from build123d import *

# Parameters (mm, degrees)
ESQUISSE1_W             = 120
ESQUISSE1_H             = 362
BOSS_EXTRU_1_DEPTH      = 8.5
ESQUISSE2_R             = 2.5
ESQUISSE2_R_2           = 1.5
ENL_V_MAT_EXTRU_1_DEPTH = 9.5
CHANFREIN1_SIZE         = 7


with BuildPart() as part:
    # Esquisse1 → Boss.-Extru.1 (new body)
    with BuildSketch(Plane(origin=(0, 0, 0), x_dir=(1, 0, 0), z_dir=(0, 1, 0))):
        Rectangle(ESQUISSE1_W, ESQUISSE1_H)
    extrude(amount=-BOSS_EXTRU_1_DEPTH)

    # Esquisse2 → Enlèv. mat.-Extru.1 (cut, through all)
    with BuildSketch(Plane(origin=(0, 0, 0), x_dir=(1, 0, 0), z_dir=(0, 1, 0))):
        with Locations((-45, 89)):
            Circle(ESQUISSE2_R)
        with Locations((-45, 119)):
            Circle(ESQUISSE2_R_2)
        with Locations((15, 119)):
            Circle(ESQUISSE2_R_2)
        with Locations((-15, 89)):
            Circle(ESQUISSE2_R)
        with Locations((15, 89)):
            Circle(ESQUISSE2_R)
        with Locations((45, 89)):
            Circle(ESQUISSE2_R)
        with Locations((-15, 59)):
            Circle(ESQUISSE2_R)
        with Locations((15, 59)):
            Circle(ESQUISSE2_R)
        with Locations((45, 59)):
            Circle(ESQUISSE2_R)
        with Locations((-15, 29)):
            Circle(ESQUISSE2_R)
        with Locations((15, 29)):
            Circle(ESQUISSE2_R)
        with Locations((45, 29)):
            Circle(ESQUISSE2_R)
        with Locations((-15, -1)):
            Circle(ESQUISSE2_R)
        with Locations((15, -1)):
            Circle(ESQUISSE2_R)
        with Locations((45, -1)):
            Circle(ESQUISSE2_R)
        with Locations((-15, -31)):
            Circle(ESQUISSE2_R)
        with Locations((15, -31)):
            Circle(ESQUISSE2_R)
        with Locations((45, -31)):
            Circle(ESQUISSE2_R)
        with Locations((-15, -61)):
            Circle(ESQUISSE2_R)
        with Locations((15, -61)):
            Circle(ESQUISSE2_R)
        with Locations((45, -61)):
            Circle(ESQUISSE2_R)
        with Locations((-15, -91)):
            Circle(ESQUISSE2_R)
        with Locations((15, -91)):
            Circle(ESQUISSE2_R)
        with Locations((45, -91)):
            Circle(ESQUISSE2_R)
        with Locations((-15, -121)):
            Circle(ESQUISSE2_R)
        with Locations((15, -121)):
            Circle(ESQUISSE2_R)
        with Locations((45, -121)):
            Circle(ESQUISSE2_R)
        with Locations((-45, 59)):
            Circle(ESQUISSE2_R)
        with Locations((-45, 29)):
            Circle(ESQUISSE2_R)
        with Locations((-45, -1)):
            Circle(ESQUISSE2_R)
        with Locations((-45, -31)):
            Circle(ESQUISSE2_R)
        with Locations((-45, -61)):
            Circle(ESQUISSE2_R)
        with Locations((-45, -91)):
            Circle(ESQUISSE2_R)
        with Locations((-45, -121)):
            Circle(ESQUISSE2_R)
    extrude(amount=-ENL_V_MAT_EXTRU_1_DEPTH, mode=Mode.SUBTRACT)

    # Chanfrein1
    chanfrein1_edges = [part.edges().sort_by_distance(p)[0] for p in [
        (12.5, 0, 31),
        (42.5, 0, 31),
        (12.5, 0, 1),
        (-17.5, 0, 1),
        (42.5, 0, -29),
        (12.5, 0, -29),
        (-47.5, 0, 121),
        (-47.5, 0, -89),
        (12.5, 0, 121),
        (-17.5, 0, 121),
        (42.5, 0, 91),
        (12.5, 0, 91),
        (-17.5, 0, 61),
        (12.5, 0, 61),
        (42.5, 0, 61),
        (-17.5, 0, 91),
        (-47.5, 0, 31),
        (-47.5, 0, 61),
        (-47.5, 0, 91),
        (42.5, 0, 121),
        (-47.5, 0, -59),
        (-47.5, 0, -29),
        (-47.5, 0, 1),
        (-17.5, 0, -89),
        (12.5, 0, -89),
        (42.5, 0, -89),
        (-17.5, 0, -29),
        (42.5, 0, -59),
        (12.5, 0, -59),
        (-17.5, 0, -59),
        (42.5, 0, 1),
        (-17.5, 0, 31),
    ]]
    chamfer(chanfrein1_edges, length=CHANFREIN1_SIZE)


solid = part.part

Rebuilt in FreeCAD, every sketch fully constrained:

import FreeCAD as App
import Part
import Sketcher


def edges_at(feature, points):
    """Names of the edges that pass closest to the given points."""
    edges = feature.Shape.Edges
    near = lambda p: min(range(len(edges)), key=lambda i: edges[i].distToShape(Part.Vertex(*p))[0])
    return sorted({f"Edge{near(p) + 1}" for p in points})

doc = App.newDocument("Part")
body = doc.addObject("PartDesign::Body", "Body")

# Sketch on XZ plane
sketch1 = body.newObject("Sketcher::SketchObject", "Sketch")
sketch1.AttachmentSupport = (doc.getObject("XZ_Plane"), [""])
sketch1.MapMode = "FlatFace"
sketch1.addGeometry([
    Part.LineSegment(App.Vector(-60, -181, 0), App.Vector(-60, 181, 0)),
    Part.LineSegment(App.Vector(-60, 181, 0), App.Vector(60, 181, 0)),
    Part.LineSegment(App.Vector(60, 181, 0), App.Vector(60, -181, 0)),
    Part.LineSegment(App.Vector(60, -181, 0), App.Vector(-60, -181, 0)),
], False)
sketch1.addConstraint([
    Sketcher.Constraint("Coincident", 0, 2, 1, 1),
    Sketcher.Constraint("Coincident", 1, 2, 2, 1),
    Sketcher.Constraint("Coincident", 2, 2, 3, 1),
    Sketcher.Constraint("Coincident", 3, 2, 0, 1),
    Sketcher.Constraint("Vertical", 0),
    Sketcher.Constraint("Horizontal", 1),
    Sketcher.Constraint("Vertical", 2),
    Sketcher.Constraint("Horizontal", 3),
    Sketcher.Constraint("Symmetric", 0, 2, 2, 2, -1, 1),
    Sketcher.Constraint("DistanceX", 1, 1, 1, 2, 120.0),
    Sketcher.Constraint("DistanceY", 0, 1, 0, 2, 362.0),
])
pad1 = body.newObject("PartDesign::Pad", "Pad")
pad1.Profile = sketch1
pad1.Length = 8.5

# Sketch on XZ plane
sketch2 = body.newObject("Sketcher::SketchObject", "Sketch001")
sketch2.AttachmentSupport = (doc.getObject("XZ_Plane"), [""])
sketch2.MapMode = "FlatFace"
sketch2.addGeometry([
    Part.Circle(App.Vector(-45, -89, 0), App.Vector(0, 0, 1), 2.5),  # 0
    Part.Circle(App.Vector(-45, -119, 0), App.Vector(0, 0, 1), 1.5),  # 1
    Part.Circle(App.Vector(15, -119, 0), App.Vector(0, 0, 1), 1.5),  # 2
    Part.Circle(App.Vector(-15, -89, 0), App.Vector(0, 0, 1), 2.5),  # 3
    Part.Circle(App.Vector(15, -89, 0), App.Vector(0, 0, 1), 2.5),  # 4
    Part.Circle(App.Vector(45, -89, 0), App.Vector(0, 0, 1), 2.5),  # 5
    Part.Circle(App.Vector(-15, -59, 0), App.Vector(0, 0, 1), 2.5),  # 6
    Part.Circle(App.Vector(15, -59, 0), App.Vector(0, 0, 1), 2.5),  # 7
    Part.Circle(App.Vector(45, -59, 0), App.Vector(0, 0, 1), 2.5),  # 8
    Part.Circle(App.Vector(-15, -29, 0), App.Vector(0, 0, 1), 2.5),  # 9
    Part.Circle(App.Vector(15, -29, 0), App.Vector(0, 0, 1), 2.5),  # 10
    Part.Circle(App.Vector(45, -29, 0), App.Vector(0, 0, 1), 2.5),  # 11
    Part.Circle(App.Vector(-15, 1, 0), App.Vector(0, 0, 1), 2.5),  # 12
    Part.Circle(App.Vector(15, 1, 0), App.Vector(0, 0, 1), 2.5),  # 13
    Part.Circle(App.Vector(45, 1, 0), App.Vector(0, 0, 1), 2.5),  # 14
    Part.Circle(App.Vector(-15, 31, 0), App.Vector(0, 0, 1), 2.5),  # 15
    Part.Circle(App.Vector(15, 31, 0), App.Vector(0, 0, 1), 2.5),  # 16
    Part.Circle(App.Vector(45, 31, 0), App.Vector(0, 0, 1), 2.5),  # 17
    Part.Circle(App.Vector(-15, 61, 0), App.Vector(0, 0, 1), 2.5),  # 18
    Part.Circle(App.Vector(15, 61, 0), App.Vector(0, 0, 1), 2.5),  # 19
    Part.Circle(App.Vector(45, 61, 0), App.Vector(0, 0, 1), 2.5),  # 20
    Part.Circle(App.Vector(-15, 91, 0), App.Vector(0, 0, 1), 2.5),  # 21
    Part.Circle(App.Vector(15, 91, 0), App.Vector(0, 0, 1), 2.5),  # 22
    Part.Circle(App.Vector(45, 91, 0), App.Vector(0, 0, 1), 2.5),  # 23
    Part.Circle(App.Vector(-15, 121, 0), App.Vector(0, 0, 1), 2.5),  # 24
    Part.Circle(App.Vector(15, 121, 0), App.Vector(0, 0, 1), 2.5),  # 25
    Part.Circle(App.Vector(45, 121, 0), App.Vector(0, 0, 1), 2.5),  # 26
    Part.Circle(App.Vector(-45, -59, 0), App.Vector(0, 0, 1), 2.5),  # 27
    Part.Circle(App.Vector(-45, -29, 0), App.Vector(0, 0, 1), 2.5),  # 28
    Part.Circle(App.Vector(-45, 1, 0), App.Vector(0, 0, 1), 2.5),  # 29
    Part.Circle(App.Vector(-45, 31, 0), App.Vector(0, 0, 1), 2.5),  # 30
    Part.Circle(App.Vector(-45, 61, 0), App.Vector(0, 0, 1), 2.5),  # 31
    Part.Circle(App.Vector(-45, 91, 0), App.Vector(0, 0, 1), 2.5),  # 32
    Part.Circle(App.Vector(-45, 121, 0), App.Vector(0, 0, 1), 2.5),  # 33
], False)
sketch2.addConstraint([
    Sketcher.Constraint("Equal", 1, 2),
    Sketcher.Constraint("Equal", 0, 3),
    Sketcher.Constraint("Equal", 3, 4),
    Sketcher.Constraint("Equal", 4, 5),
    Sketcher.Constraint("Equal", 5, 6),
    Sketcher.Constraint("Equal", 6, 7),
    Sketcher.Constraint("Equal", 7, 8),
    Sketcher.Constraint("Equal", 8, 9),
    Sketcher.Constraint("Equal", 9, 10),
    Sketcher.Constraint("Equal", 10, 11),
    Sketcher.Constraint("Equal", 11, 12),
    Sketcher.Constraint("Equal", 12, 13),
    Sketcher.Constraint("Equal", 13, 14),
    Sketcher.Constraint("Equal", 14, 15),
    Sketcher.Constraint("Equal", 15, 16),
    Sketcher.Constraint("Equal", 16, 17),
    Sketcher.Constraint("Equal", 17, 18),
    Sketcher.Constraint("Equal", 18, 19),
    Sketcher.Constraint("Equal", 19, 20),
    Sketcher.Constraint("Equal", 20, 21),
    Sketcher.Constraint("Equal", 21, 22),
    Sketcher.Constraint("Equal", 22, 23),
    Sketcher.Constraint("Equal", 23, 24),
    Sketcher.Constraint("Equal", 24, 25),
    Sketcher.Constraint("Equal", 25, 26),
    Sketcher.Constraint("Equal", 26, 27),
    Sketcher.Constraint("Equal", 27, 28),
    Sketcher.Constraint("Equal", 28, 29),
    Sketcher.Constraint("Equal", 29, 30),
    Sketcher.Constraint("Equal", 30, 31),
    Sketcher.Constraint("Equal", 31, 32),
    Sketcher.Constraint("Equal", 32, 33),
    Sketcher.Constraint("Symmetric", 3, 3, 4, 3, -2),
    Sketcher.Constraint("Symmetric", 0, 3, 5, 3, -2),
    Sketcher.Constraint("Symmetric", 6, 3, 7, 3, -2),
    Sketcher.Constraint("Symmetric", 9, 3, 10, 3, -2),
    Sketcher.Constraint("Symmetric", 12, 3, 13, 3, -2),
    Sketcher.Constraint("Symmetric", 15, 3, 16, 3, -2),
    Sketcher.Constraint("Symmetric", 18, 3, 19, 3, -2),
    Sketcher.Constraint("Symmetric", 21, 3, 22, 3, -2),
    Sketcher.Constraint("Symmetric", 24, 3, 25, 3, -2),
    Sketcher.Constraint("Symmetric", 8, 3, 27, 3, -2),
    Sketcher.Constraint("Symmetric", 11, 3, 28, 3, -2),
    Sketcher.Constraint("Symmetric", 14, 3, 29, 3, -2),
    Sketcher.Constraint("Symmetric", 17, 3, 30, 3, -2),
    Sketcher.Constraint("Symmetric", 20, 3, 31, 3, -2),
    Sketcher.Constraint("Symmetric", 23, 3, 32, 3, -2),
    Sketcher.Constraint("Symmetric", 26, 3, 33, 3, -2),
    Sketcher.Constraint("Horizontal", 1, 3, 2, 3),
    Sketcher.Constraint("Horizontal", 0, 3, 3, 3),
    Sketcher.Constraint("Horizontal", 7, 3, 8, 3),
    Sketcher.Constraint("Horizontal", 10, 3, 11, 3),
    Sketcher.Constraint("Horizontal", 13, 3, 14, 3),
    Sketcher.Constraint("Horizontal", 16, 3, 17, 3),
    Sketcher.Constraint("Horizontal", 19, 3, 20, 3),
    Sketcher.Constraint("Horizontal", 22, 3, 23, 3),
    Sketcher.Constraint("Horizontal", 25, 3, 26, 3),
    Sketcher.Constraint("Vertical", 0, 3, 1, 3),
    Sketcher.Constraint("Vertical", 2, 3, 4, 3),
    Sketcher.Constraint("Vertical", 3, 3, 6, 3),
    Sketcher.Constraint("Vertical", 5, 3, 8, 3),
    Sketcher.Constraint("Vertical", 6, 3, 9, 3),
    Sketcher.Constraint("Vertical", 8, 3, 11, 3),
    Sketcher.Constraint("Vertical", 9, 3, 12, 3),
    Sketcher.Constraint("Vertical", 11, 3, 14, 3),
    Sketcher.Constraint("Vertical", 12, 3, 15, 3),
    Sketcher.Constraint("Vertical", 14, 3, 17, 3),
    Sketcher.Constraint("Vertical", 15, 3, 18, 3),
    Sketcher.Constraint("Vertical", 17, 3, 20, 3),
    Sketcher.Constraint("Vertical", 18, 3, 21, 3),
    Sketcher.Constraint("Vertical", 20, 3, 23, 3),
    Sketcher.Constraint("Vertical", 21, 3, 24, 3),
    Sketcher.Constraint("Vertical", 23, 3, 26, 3),
    Sketcher.Constraint("Diameter", 0, 5.0),
    Sketcher.Constraint("Diameter", 1, 3.0),
    Sketcher.Constraint("DistanceX", 0, 3, -1, 1, 45.0),
    Sketcher.Constraint("DistanceY", 0, 3, -1, 1, 89.0),
    Sketcher.Constraint("DistanceY", 1, 3, -1, 1, 119.0),
    Sketcher.Constraint("DistanceX", -1, 1, 2, 3, 15.0),
    Sketcher.Constraint("DistanceY", 6, 3, -1, 1, 59.0),
    Sketcher.Constraint("DistanceY", 9, 3, -1, 1, 29.0),
    Sketcher.Constraint("DistanceY", -1, 1, 12, 3, 1.0),
    Sketcher.Constraint("DistanceY", -1, 1, 15, 3, 31.0),
    Sketcher.Constraint("DistanceY", -1, 1, 18, 3, 61.0),
    Sketcher.Constraint("DistanceY", -1, 1, 21, 3, 91.0),
    Sketcher.Constraint("DistanceY", -1, 1, 24, 3, 121.0),
])
pocket1 = body.newObject("PartDesign::Pocket", "Pocket")
pocket1.Profile = sketch2
pocket1.Type = "ThroughAll"
pocket1.Reversed = True
doc.recompute()

chamfer = body.newObject("PartDesign::Chamfer", "Chamfer")
chamfer.Base = (pocket1, edges_at(pocket1, [
    (12.5, 0, 31),
    (42.5, 0, 31),
    (12.5, 0, 1),
    (-17.5, 0, 1),
    (42.5, 0, -29),
    (12.5, 0, -29),
    (-47.5, 0, 121),
    (-47.5, 0, -89),
    (12.5, 0, 121),
    (-17.5, 0, 121),
    (42.5, 0, 91),
    (12.5, 0, 91),
    (-17.5, 0, 61),
    (12.5, 0, 61),
    (42.5, 0, 61),
    (-17.5, 0, 91),
    (-47.5, 0, 31),
    (-47.5, 0, 61),
    (-47.5, 0, 91),
    (42.5, 0, 121),
    (-47.5, 0, -59),
    (-47.5, 0, -29),
    (-47.5, 0, 1),
    (-17.5, 0, -89),
    (12.5, 0, -89),
    (42.5, 0, -89),
    (-17.5, 0, -29),
    (42.5, 0, -59),
    (12.5, 0, -59),
    (-17.5, 0, -59),
    (42.5, 0, 1),
    (-17.5, 0, 31),
]))
chamfer.Size = 7

doc.recompute()
